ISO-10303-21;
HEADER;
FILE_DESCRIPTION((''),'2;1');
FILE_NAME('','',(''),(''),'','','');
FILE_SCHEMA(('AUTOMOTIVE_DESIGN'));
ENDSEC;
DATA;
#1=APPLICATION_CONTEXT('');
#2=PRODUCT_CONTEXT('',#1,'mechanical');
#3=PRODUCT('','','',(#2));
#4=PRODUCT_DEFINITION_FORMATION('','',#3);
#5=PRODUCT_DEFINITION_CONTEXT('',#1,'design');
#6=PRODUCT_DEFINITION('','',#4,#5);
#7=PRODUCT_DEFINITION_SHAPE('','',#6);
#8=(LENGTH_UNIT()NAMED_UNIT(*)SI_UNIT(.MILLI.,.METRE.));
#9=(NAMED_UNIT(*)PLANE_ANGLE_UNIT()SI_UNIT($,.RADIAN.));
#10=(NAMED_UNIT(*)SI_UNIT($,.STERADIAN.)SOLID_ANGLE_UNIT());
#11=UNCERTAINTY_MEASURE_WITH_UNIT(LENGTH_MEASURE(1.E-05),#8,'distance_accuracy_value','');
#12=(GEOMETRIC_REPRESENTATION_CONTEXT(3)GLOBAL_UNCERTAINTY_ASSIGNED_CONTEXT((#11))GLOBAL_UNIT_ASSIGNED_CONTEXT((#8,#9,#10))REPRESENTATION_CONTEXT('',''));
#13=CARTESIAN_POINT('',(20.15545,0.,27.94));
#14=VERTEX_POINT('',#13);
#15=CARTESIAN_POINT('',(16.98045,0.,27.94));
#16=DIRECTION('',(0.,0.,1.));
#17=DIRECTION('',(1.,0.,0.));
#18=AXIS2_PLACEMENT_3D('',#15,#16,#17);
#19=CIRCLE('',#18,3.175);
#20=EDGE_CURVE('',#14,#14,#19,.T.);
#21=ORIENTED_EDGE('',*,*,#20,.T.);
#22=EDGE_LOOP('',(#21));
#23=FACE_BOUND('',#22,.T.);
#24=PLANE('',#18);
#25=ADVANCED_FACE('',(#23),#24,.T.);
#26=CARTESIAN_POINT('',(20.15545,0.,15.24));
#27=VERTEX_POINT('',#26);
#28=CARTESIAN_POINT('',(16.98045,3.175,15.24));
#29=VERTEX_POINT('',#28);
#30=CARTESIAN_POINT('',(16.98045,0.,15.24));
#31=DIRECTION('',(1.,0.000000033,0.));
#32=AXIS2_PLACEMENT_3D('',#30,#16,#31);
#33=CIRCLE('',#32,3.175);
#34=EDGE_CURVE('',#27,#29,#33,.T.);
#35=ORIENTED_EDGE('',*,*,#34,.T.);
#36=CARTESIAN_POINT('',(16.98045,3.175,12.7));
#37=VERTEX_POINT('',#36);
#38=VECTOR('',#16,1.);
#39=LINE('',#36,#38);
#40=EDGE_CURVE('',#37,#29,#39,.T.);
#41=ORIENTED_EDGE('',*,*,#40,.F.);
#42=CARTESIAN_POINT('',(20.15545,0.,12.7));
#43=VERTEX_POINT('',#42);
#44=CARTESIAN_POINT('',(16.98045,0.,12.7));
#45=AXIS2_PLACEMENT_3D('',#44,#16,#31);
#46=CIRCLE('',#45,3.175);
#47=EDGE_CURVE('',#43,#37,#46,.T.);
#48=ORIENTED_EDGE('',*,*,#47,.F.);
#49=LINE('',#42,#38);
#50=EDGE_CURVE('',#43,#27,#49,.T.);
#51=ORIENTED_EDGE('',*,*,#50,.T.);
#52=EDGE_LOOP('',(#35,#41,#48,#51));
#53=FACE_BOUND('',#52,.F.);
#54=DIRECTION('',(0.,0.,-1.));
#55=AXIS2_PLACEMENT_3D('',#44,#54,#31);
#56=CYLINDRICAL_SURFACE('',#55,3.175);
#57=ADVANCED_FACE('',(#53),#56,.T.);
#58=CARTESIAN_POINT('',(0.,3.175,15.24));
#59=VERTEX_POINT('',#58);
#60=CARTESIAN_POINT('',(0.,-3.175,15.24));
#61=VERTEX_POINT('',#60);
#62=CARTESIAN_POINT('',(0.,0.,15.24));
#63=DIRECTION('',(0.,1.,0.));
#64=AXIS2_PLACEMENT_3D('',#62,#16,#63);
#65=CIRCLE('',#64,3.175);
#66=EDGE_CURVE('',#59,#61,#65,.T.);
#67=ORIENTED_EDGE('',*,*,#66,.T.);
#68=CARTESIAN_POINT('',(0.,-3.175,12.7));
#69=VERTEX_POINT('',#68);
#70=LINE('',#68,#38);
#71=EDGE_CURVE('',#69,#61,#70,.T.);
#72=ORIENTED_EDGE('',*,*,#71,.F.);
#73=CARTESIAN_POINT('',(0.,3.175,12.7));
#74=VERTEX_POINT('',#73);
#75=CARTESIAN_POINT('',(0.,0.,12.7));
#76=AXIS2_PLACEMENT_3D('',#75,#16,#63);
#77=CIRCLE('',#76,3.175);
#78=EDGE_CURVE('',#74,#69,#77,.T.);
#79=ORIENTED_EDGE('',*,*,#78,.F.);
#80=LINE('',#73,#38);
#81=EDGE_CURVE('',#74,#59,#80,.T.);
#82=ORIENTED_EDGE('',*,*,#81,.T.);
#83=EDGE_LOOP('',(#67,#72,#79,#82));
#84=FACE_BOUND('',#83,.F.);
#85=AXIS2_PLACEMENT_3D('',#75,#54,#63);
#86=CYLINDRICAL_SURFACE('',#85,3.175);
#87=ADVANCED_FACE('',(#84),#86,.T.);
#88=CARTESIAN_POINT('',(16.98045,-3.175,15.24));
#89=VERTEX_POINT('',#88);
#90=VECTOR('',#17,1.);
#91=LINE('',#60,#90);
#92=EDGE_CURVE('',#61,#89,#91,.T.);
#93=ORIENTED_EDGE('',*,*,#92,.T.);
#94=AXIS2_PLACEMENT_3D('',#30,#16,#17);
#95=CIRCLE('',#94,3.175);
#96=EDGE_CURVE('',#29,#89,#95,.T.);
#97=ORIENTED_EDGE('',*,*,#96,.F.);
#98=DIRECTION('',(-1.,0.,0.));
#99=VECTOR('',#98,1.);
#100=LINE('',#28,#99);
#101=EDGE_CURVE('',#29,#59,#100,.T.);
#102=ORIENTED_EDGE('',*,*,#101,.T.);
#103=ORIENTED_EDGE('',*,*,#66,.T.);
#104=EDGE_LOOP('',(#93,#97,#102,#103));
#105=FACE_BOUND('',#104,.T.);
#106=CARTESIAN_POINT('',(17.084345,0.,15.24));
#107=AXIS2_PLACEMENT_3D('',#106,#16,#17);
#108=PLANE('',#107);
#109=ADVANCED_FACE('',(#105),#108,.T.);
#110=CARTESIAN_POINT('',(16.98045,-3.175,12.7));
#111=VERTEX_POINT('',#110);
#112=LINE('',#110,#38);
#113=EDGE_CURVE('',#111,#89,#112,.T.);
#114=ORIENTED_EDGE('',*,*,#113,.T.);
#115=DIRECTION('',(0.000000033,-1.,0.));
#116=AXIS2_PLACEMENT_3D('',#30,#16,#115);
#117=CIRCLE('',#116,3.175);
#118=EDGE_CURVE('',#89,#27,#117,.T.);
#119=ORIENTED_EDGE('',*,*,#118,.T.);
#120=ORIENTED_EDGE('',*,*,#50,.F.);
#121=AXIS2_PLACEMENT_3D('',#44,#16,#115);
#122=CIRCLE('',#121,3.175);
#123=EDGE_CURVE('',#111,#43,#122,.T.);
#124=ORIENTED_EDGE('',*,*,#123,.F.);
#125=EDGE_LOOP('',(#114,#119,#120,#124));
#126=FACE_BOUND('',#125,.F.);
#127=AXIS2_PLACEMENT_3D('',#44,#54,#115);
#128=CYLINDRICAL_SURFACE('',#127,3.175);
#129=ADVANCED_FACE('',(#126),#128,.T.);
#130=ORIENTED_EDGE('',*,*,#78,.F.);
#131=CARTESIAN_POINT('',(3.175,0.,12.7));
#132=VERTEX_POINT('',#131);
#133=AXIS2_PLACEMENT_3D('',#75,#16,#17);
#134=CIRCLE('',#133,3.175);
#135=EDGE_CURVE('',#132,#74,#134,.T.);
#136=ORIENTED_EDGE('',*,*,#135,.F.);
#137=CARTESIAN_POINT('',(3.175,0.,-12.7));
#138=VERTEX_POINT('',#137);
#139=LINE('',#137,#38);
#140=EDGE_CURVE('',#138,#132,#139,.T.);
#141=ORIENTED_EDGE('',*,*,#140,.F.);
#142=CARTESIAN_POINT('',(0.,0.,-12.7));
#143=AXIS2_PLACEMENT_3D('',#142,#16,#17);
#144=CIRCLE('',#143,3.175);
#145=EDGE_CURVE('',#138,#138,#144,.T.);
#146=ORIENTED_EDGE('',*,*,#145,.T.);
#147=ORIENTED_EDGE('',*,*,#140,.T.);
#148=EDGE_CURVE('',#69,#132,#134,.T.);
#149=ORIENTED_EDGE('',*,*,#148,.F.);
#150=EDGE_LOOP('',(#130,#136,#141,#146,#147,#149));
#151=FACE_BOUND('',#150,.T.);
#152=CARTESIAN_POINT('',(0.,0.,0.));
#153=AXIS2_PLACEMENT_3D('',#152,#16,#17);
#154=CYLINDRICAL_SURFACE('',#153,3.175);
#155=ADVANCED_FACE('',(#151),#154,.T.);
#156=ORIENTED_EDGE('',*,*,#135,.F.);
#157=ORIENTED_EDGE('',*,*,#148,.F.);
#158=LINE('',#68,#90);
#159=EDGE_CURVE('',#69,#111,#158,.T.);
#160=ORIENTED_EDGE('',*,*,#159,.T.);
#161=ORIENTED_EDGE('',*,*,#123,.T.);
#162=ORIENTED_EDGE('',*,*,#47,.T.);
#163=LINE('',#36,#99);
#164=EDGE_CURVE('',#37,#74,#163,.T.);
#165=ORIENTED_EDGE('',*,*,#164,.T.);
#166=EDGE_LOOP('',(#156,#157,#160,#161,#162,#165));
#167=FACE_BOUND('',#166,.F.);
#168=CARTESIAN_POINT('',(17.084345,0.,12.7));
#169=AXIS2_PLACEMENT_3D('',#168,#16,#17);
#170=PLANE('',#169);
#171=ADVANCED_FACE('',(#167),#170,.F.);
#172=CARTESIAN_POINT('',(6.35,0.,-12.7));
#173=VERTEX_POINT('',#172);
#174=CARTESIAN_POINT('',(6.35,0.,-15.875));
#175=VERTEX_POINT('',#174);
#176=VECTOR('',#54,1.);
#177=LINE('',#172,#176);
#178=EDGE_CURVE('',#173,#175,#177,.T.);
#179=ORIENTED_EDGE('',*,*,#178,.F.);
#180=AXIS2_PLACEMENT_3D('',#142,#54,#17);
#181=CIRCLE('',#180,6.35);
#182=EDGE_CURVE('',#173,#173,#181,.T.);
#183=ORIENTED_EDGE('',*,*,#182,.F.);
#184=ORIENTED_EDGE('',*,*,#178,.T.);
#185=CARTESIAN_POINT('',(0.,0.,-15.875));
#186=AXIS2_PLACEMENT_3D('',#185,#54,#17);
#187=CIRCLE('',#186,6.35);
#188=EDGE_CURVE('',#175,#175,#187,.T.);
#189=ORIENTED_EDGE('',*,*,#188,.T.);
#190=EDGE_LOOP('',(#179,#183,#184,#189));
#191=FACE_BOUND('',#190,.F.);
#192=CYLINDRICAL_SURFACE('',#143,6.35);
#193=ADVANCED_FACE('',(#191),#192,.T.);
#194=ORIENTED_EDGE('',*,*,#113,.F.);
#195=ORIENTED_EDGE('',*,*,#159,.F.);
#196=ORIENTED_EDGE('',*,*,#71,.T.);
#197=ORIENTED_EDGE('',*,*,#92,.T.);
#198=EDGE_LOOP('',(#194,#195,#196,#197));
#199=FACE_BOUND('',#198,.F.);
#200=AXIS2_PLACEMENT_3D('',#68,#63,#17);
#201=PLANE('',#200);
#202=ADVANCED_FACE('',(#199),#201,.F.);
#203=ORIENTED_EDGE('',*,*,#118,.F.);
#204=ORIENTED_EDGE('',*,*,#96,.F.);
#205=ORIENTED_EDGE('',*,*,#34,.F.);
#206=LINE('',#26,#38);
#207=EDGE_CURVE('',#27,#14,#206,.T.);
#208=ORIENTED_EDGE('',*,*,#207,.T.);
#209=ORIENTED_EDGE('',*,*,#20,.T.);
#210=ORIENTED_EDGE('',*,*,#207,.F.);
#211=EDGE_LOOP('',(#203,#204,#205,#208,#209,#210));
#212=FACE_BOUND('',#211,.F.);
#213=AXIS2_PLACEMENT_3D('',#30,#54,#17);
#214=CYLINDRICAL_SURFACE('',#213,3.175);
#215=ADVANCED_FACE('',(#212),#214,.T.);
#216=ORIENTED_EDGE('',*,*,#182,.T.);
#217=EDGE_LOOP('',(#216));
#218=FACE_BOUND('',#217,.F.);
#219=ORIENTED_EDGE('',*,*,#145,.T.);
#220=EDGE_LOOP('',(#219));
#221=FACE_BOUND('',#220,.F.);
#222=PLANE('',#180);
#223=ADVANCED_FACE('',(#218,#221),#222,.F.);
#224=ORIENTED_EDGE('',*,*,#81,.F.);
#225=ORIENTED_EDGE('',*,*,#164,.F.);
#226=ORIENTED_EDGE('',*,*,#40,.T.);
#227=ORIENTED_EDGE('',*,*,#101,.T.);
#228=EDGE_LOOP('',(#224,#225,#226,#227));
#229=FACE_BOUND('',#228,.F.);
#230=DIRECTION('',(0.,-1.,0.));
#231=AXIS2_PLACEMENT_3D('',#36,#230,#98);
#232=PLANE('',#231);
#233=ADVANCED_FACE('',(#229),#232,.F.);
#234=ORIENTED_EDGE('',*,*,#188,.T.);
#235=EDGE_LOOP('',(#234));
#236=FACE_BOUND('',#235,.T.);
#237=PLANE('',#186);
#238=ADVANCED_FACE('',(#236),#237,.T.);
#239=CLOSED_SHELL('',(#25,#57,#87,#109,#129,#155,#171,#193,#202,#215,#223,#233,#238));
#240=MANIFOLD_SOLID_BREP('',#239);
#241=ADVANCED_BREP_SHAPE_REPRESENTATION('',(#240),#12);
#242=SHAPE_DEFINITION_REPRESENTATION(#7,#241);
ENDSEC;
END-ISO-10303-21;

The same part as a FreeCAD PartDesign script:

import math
import FreeCAD as App
import Part
import Sketcher
from FreeCAD import Vector
Q = App.Units.Quantity

doc = App.newDocument("Part")
body = doc.addObject("PartDesign::Body", "Body")

# Sketch on XY plane
sketch1 = body.newObject("Sketcher::SketchObject", "Sketch")
sketch1.AttachmentSupport = (doc.getObject("XY_Plane"), [""])
sketch1.MapMode = "FlatFace"
sketch1.addGeometry(Part.Circle(Vector(0, 0, 0), Vector(0, 0, 1), 3.175), False)
sketch1.addConstraint([
    Sketcher.Constraint("Coincident", 0, 3, -1, 1),
    Sketcher.Constraint("Diameter", 0, Q("0.25 in")),
])
pad1 = body.newObject("PartDesign::Pad", "Pad")
pad1.Profile = sketch1
pad1.Length = Q("1 in")
pad1.Midplane = True

# Sketch on XY plane
sketch2 = body.newObject("Sketcher::SketchObject", "Sketch001")
sketch2.AttachmentSupport = (doc.getObject("XY_Plane"), [""])
sketch2.MapMode = "FlatFace"
sketch2.AttachmentOffset = App.Placement(Vector(0, 0, -0.5 * 25.4), App.Rotation())
sketch2.addGeometry(Part.Circle(Vector(0, 0, 0), Vector(0, 0, 1), 6.35), False)
sketch2.addConstraint([
    Sketcher.Constraint("Coincident", 0, 3, -1, 1),
    Sketcher.Constraint("Diameter", 0, Q("0.5 in")),
])
pad2 = body.newObject("PartDesign::Pad", "Pad001")
pad2.Profile = sketch2
pad2.Length = Q("0.125 in")
pad2.Reversed = True

# Sketch on XY plane
sketch3 = body.newObject("Sketcher::SketchObject", "Sketch002")
sketch3.AttachmentSupport = (doc.getObject("XY_Plane"), [""])
sketch3.MapMode = "FlatFace"
sketch3.AttachmentOffset = App.Placement(Vector(0, 0, 0.5 * 25.4), App.Rotation())
sketch3.addGeometry([
    Part.ArcOfCircle(Part.Circle(Vector(16.98045, 0, 0), Vector(0, 0, 1), 3.175), math.radians(-89.999998), math.radians(-0.000002)),  # 0
    Part.ArcOfCircle(Part.Circle(Vector(16.98045, 0, 0), Vector(0, 0, 1), 3.175), math.radians(0.000002), math.radians(89.999998)),  # 1
    Part.LineSegment(Vector(16.98045, 3.175, 0), Vector(0, 3.175, 0)),  # 2
    Part.ArcOfCircle(Part.Circle(Vector(0, 0, 0), Vector(0, 0, 1), 3.175), math.radians(90), math.radians(270)),  # 3
    Part.LineSegment(Vector(0, -3.175, 0), Vector(16.98045, -3.175, 0)),  # 4
], False)
sketch3.addConstraint([
    Sketcher.Constraint("Tangent", 0, 2, 1, 1),
    Sketcher.Constraint("Tangent", 1, 2, 2, 1),
    Sketcher.Constraint("Tangent", 2, 2, 3, 1),
    Sketcher.Constraint("Tangent", 3, 2, 4, 1),
    Sketcher.Constraint("Tangent", 4, 2, 0, 1),
    Sketcher.Constraint("Horizontal", 2),
    Sketcher.Constraint("Horizontal", 4),
    Sketcher.Constraint("Coincident", 3, 3, -1, 1),
    Sketcher.Constraint("Equal", 0, 1),
    Sketcher.Constraint("PointOnObject", 0, 2, -1),
    Sketcher.Constraint("Radius", 0, Q("0.125 in")),
    Sketcher.Constraint("DistanceX", 2, 2, 2, 1, Q("16.98045 mm")),
])
pad3 = body.newObject("PartDesign::Pad", "Pad002")
pad3.Profile = sketch3
pad3.Length = Q("0.1 in")

# Sketch on XY plane
sketch4 = body.newObject("Sketcher::SketchObject", "Sketch003")
sketch4.AttachmentSupport = (doc.getObject("XY_Plane"), [""])
sketch4.MapMode = "FlatFace"
sketch4.AttachmentOffset = App.Placement(Vector(0, 0, 0.6 * 25.4), App.Rotation())
sketch4.addGeometry(Part.Circle(Vector(16.98045, 0, 0), Vector(0, 0, 1), 3.175), False)
sketch4.addConstraint([
    Sketcher.Constraint("PointOnObject", 0, 3, -1),
    Sketcher.Constraint("Diameter", 0, Q("0.25 in")),
    Sketcher.Constraint("DistanceX", -1, 1, 0, 3, Q("16.98045 mm")),
])
pad4 = body.newObject("PartDesign::Pad", "Pad003")
pad4.Profile = sketch4
pad4.Length = Q("0.5 in")

doc.recompute()
